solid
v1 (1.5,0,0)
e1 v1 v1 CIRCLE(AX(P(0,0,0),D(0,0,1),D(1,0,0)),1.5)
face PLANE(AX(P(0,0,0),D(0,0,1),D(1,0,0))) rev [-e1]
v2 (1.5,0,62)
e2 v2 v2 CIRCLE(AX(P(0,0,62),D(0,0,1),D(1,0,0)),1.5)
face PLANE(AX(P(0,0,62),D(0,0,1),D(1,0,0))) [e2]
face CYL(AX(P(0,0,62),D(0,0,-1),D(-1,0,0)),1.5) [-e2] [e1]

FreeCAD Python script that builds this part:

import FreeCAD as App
import Part
import Sketcher
from FreeCAD import Vector

doc = App.newDocument("Part")
body = doc.addObject("PartDesign::Body", "Body")

# Sketch on XY plane
sketch1 = doc.addObject("Sketcher::SketchObject", "Sketch")
body.addObject(sketch1)
sketch1.AttachmentSupport = (doc.XY_Plane, [""])
sketch1.MapMode = "FlatFace"
sketch1.addGeometry(Part.Circle(Vector(0, 0, 0), Vector(0, 0, 1), 1.5), False)
sketch1.addConstraint([
    Sketcher.Constraint("Coincident", 0, 3, -1, 1),
    Sketcher.Constraint("Diameter", 0, 3.0),
])
pad1 = doc.addObject("PartDesign::Pad", "Pad")
body.addObject(pad1)
pad1.Profile = sketch1
pad1.Length = 62

doc.recompute()
